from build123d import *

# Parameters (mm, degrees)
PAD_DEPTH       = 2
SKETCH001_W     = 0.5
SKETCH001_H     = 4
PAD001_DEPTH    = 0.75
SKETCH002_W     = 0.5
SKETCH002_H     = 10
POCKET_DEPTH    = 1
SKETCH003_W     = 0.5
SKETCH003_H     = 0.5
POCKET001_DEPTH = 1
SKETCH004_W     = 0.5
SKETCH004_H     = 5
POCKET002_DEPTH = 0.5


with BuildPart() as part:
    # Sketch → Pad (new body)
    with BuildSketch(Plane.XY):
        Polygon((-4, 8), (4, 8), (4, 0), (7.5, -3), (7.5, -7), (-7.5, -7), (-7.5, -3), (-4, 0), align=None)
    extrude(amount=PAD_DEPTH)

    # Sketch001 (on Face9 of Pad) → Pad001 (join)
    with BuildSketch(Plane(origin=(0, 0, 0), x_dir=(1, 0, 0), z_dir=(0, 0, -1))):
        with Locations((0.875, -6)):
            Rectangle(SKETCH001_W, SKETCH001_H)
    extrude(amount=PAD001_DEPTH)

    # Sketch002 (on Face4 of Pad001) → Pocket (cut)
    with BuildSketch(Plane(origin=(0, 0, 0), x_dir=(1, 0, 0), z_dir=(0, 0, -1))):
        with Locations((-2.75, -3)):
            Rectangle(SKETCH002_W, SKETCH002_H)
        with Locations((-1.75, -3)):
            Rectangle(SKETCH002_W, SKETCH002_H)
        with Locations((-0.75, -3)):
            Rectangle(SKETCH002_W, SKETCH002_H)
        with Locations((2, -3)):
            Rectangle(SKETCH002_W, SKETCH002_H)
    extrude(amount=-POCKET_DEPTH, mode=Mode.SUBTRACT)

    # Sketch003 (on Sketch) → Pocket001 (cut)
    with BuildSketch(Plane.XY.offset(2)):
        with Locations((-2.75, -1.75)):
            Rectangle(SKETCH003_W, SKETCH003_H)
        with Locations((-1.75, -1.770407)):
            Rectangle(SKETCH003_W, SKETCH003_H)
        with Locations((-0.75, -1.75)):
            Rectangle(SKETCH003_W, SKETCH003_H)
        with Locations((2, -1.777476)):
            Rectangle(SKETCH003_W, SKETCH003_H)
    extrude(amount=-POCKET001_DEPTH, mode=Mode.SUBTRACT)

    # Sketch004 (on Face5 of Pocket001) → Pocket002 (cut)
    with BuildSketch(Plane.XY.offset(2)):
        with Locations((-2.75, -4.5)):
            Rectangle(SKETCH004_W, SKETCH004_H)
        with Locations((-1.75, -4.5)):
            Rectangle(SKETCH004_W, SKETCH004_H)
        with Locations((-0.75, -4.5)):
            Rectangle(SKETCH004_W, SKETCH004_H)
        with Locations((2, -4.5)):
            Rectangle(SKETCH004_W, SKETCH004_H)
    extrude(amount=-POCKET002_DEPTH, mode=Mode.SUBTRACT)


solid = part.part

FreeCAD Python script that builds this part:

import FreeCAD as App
import Part
import Sketcher

doc = App.newDocument("Part")
params = doc.addObject("Spreadsheet::Sheet", "Params")
for row, (alias, value) in enumerate([
    ("sketch1_width", "8 mm"),
    ("sketch1_width2", "15 mm"),
    ("sketch1_height", "4 mm"),
    ("pad1_length", "2 mm"),
    ("sketch2_height", "4 mm"),
    ("sketch2_width", "0.5 mm"),
    ("pad2_length", "0.75 mm"),
    ("sketch3_height", "10 mm"),
    ("sketch3_width", "0.5 mm"),
    ("pocket1_length", "1 mm"),
    ("sketch4_width", "0.5 mm"),
    ("pocket2_length", "1 mm"),
    ("sketch5_height", "5 mm"),
    ("sketch5_width", "0.5 mm"),
    ("pocket3_length", "0.5 mm"),
], start=1):
    params.set(f"A{row}", alias)
    params.set(f"B{row}", "=" + value)
    params.setAlias(f"B{row}", alias)

body = doc.addObject("PartDesign::Body", "Body")

# Sketch on XY plane
sketch1 = body.newObject("Sketcher::SketchObject", "Sketch")
sketch1.AttachmentSupport = (doc.getObject("XY_Plane"), [""])
sketch1.MapMode = "FlatFace"
sketch1.addGeometry([
    Part.LineSegment(App.Vector(4, 8, 0), App.Vector(-4, 8, 0)),  # 0
    Part.LineSegment(App.Vector(-4, 8, 0), App.Vector(-4, 0, 0)),  # 1
    Part.LineSegment(App.Vector(-4, 0, 0), App.Vector(-7.5, -3, 0)),  # 2
    Part.LineSegment(App.Vector(-7.5, -3, 0), App.Vector(-7.5, -7, 0)),  # 3
    Part.LineSegment(App.Vector(-7.5, -7, 0), App.Vector(7.5, -7, 0)),  # 4
    Part.LineSegment(App.Vector(7.5, -7, 0), App.Vector(7.5, -3, 0)),  # 5
    Part.LineSegment(App.Vector(7.5, -3, 0), App.Vector(4, 0, 0)),  # 6
    Part.LineSegment(App.Vector(4, 0, 0), App.Vector(4, 8, 0)),  # 7
], False)
sketch1.addConstraint([
    Sketcher.Constraint("Coincident", 0, 2, 1, 1),
    Sketcher.Constraint("Coincident", 1, 2, 2, 1),
    Sketcher.Constraint("Coincident", 2, 2, 3, 1),
    Sketcher.Constraint("Coincident", 3, 2, 4, 1),
    Sketcher.Constraint("Coincident", 4, 2, 5, 1),
    Sketcher.Constraint("Coincident", 5, 2, 6, 1),
    Sketcher.Constraint("Coincident", 6, 2, 7, 1),
    Sketcher.Constraint("Coincident", 7, 2, 0, 1),
    Sketcher.Constraint("Horizontal", 0),
    Sketcher.Constraint("Vertical", 1),
    Sketcher.Constraint("Vertical", 3),
    Sketcher.Constraint("Horizontal", 4),
    Sketcher.Constraint("Vertical", 5),
    Sketcher.Constraint("Vertical", 7),
    Sketcher.Constraint("Symmetric", 1, 2, 6, 2, -1, 1),
    Sketcher.Constraint("Symmetric", 2, 2, 5, 2, -2),
    Sketcher.Constraint("PointOnObject", 1, 2, -1),
    Sketcher.Constraint("Equal", 0, 1),
    Sketcher.Constraint("DistanceX", 0, 2, 0, 1, 8.0),
    Sketcher.Constraint("DistanceX", 4, 1, 4, 2, 15.0),
    Sketcher.Constraint("DistanceY", 3, 2, 3, 1, 4.0),
    Sketcher.Constraint("DistanceY", 2, 2, -1, 1, 3.0),
])
sketch1.setExpression("Constraints[18]", "Params.sketch1_width")
sketch1.setExpression("Constraints[19]", "Params.sketch1_width2")
sketch1.setExpression("Constraints[20]", "Params.sketch1_height")
pad1 = body.newObject("PartDesign::Pad", "Pad")
pad1.Profile = sketch1
pad1.setExpression("Length", "Params.pad1_length")

# Sketch on XY plane
sketch2 = body.newObject("Sketcher::SketchObject", "Sketch001")
sketch2.AttachmentSupport = (doc.getObject("XY_Plane"), [""])
sketch2.MapMode = "FlatFace"
sketch2.addGeometry([
    Part.LineSegment(App.Vector(0.6, 4, 0), App.Vector(0.6, 8, 0)),
    Part.LineSegment(App.Vector(0.6, 8, 0), App.Vector(1.1, 8, 0)),
    Part.LineSegment(App.Vector(1.1, 8, 0), App.Vector(1.1, 4, 0)),
    Part.LineSegment(App.Vector(1.1, 4, 0), App.Vector(0.6, 4, 0)),
], False)
sketch2.addConstraint([
    Sketcher.Constraint("Coincident", 0, 2, 1, 1),
    Sketcher.Constraint("Coincident", 1, 2, 2, 1),
    Sketcher.Constraint("Coincident", 2, 2, 3, 1),
    Sketcher.Constraint("Coincident", 3, 2, 0, 1),
    Sketcher.Constraint("Vertical", 0),
    Sketcher.Constraint("Horizontal", 1),
    Sketcher.Constraint("Vertical", 2),
    Sketcher.Constraint("Horizontal", 3),
    Sketcher.Constraint("DistanceY", 0, 1, 0, 2, 4.0),
    Sketcher.Constraint("DistanceX", 1, 1, 1, 2, 0.5),
    Sketcher.Constraint("DistanceY", -1, 1, 0, 2, 8.0),
    Sketcher.Constraint("DistanceX", -1, 1, 0, 2, 0.625),
])
sketch2.setExpression("Constraints[8]", "Params.sketch2_height")
sketch2.setExpression("Constraints[9]", "Params.sketch2_width")
pad2 = body.newObject("PartDesign::Pad", "Pad001")
pad2.Profile = sketch2
pad2.setExpression("Length", "Params.pad2_length")
pad2.Reversed = True

# Sketch on XY plane
sketch3 = body.newObject("Sketcher::SketchObject", "Sketch002")
sketch3.AttachmentSupport = (doc.getObject("XY_Plane"), [""])
sketch3.MapMode = "FlatFace"
sketch3.addGeometry([
    Part.LineSegment(App.Vector(-3, -2, 0), App.Vector(-3, 8, 0)),  # 0
    Part.LineSegment(App.Vector(-3, 8, 0), App.Vector(-2.5, 8, 0)),  # 1
    Part.LineSegment(App.Vector(-2.5, 8, 0), App.Vector(-2.5, -2, 0)),  # 2
    Part.LineSegment(App.Vector(-2.5, -2, 0), App.Vector(-3, -2, 0)),  # 3
    Part.LineSegment(App.Vector(-2, -2, 0), App.Vector(-2, 8, 0)),  # 4
    Part.LineSegment(App.Vector(-2, 8, 0), App.Vector(-1.5, 8, 0)),  # 5
    Part.LineSegment(App.Vector(-1.5, 8, 0), App.Vector(-1.5, -2, 0)),  # 6
    Part.LineSegment(App.Vector(-1.5, -2, 0), App.Vector(-2, -2, 0)),  # 7
    Part.LineSegment(App.Vector(-1, -2, 0), App.Vector(-1, 8, 0)),  # 8
    Part.LineSegment(App.Vector(-1, 8, 0), App.Vector(-0.5, 8, 0)),  # 9
    Part.LineSegment(App.Vector(-0.5, 8, 0), App.Vector(-0.5, -2, 0)),  # 10
    Part.LineSegment(App.Vector(-0.5, -2, 0), App.Vector(-1, -2, 0)),  # 11
    Part.LineSegment(App.Vector(1.8, -2, 0), App.Vector(1.8, 8, 0)),  # 12
    Part.LineSegment(App.Vector(1.8, 8, 0), App.Vector(2.2, 8, 0)),  # 13
    Part.LineSegment(App.Vector(2.2, 8, 0), App.Vector(2.2, -2, 0)),  # 14
    Part.LineSegment(App.Vector(2.2, -2, 0), App.Vector(1.8, -2, 0)),  # 15
], False)
sketch3.addConstraint([
    Sketcher.Constraint("Coincident", 0, 2, 1, 1),
    Sketcher.Constraint("Coincident", 1, 2, 2, 1),
    Sketcher.Constraint("Coincident", 2, 2, 3, 1),
    Sketcher.Constraint("Coincident", 3, 2, 0, 1),
    Sketcher.Constraint("Coincident", 4, 2, 5, 1),
    Sketcher.Constraint("Coincident", 5, 2, 6, 1),
    Sketcher.Constraint("Coincident", 6, 2, 7, 1),
    Sketcher.Constraint("Coincident", 7, 2, 4, 1),
    Sketcher.Constraint("Coincident", 8, 2, 9, 1),
    Sketcher.Constraint("Coincident", 9, 2, 10, 1),
    Sketcher.Constraint("Coincident", 10, 2, 11, 1),
    Sketcher.Constraint("Coincident", 11, 2, 8, 1),
    Sketcher.Constraint("Coincident", 12, 2, 13, 1),
    Sketcher.Constraint("Coincident", 13, 2, 14, 1),
    Sketcher.Constraint("Coincident", 14, 2, 15, 1),
    Sketcher.Constraint("Coincident", 15, 2, 12, 1),
    Sketcher.Constraint("Vertical", 0),
    Sketcher.Constraint("Horizontal", 1),
    Sketcher.Constraint("Vertical", 2),
    Sketcher.Constraint("Horizontal", 3),
    Sketcher.Constraint("Vertical", 4),
    Sketcher.Constraint("Horizontal", 5),
    Sketcher.Constraint("Vertical", 6),
    Sketcher.Constraint("Horizontal", 7),
    Sketcher.Constraint("Vertical", 8),
    Sketcher.Constraint("Horizontal", 9),
    Sketcher.Constraint("Vertical", 10),
    Sketcher.Constraint("Horizontal", 11),
    Sketcher.Constraint("Vertical", 12),
    Sketcher.Constraint("Horizontal", 13),
    Sketcher.Constraint("Vertical", 14),
    Sketcher.Constraint("Horizontal", 15),
    Sketcher.Constraint("Horizontal", 1, 2, 4, 2),
    Sketcher.Constraint("Horizontal", 3, 2, 6, 2),
    Sketcher.Constraint("Horizontal", 5, 2, 8, 2),
    Sketcher.Constraint("Horizontal", 7, 2, 10, 2),
    Sketcher.Constraint("Horizontal", 9, 2, 12, 2),
    Sketcher.Constraint("Horizontal", 11, 2, 14, 2),
    Sketcher.Constraint("Equal", 3, 5),
    Sketcher.Constraint("Equal", 7, 9),
    Sketcher.Constraint("Equal", 11, 13),
    Sketcher.Constraint("DistanceY", 0, 1, 0, 2, 10.0),
    Sketcher.Constraint("DistanceX", 1, 1, 1, 2, 0.5),
    Sketcher.Constraint("DistanceX", 0, 2, -1, 1, 3.0),
    Sketcher.Constraint("DistanceY", -1, 1, 0, 2, 8.0),
    Sketcher.Constraint("DistanceX", 4, 2, -1, 1, 2.0),
    Sketcher.Constraint("DistanceX", 8, 2, -1, 1, 1.0),
    Sketcher.Constraint("DistanceX", -1, 1, 12, 2, 1.75),
])
sketch3.setExpression("Constraints[41]", "Params.sketch3_height")
sketch3.setExpression("Constraints[42]", "Params.sketch3_width")
pocket1 = body.newObject("PartDesign::Pocket", "Pocket")
pocket1.Profile = sketch3
pocket1.setExpression("Length", "Params.pocket1_length")
pocket1.Reversed = True

# Sketch on XY plane
sketch4 = body.newObject("Sketcher::SketchObject", "Sketch003")
sketch4.AttachmentSupport = (doc.getObject("XY_Plane"), [""])
sketch4.MapMode = "FlatFace"
sketch4.AttachmentOffset = App.Placement(App.Vector(0, 0, 2), App.Rotation())
sketch4.addGeometry([
    Part.LineSegment(App.Vector(-3, -1.5, 0), App.Vector(-3, -2, 0)),  # 0
    Part.LineSegment(App.Vector(-3, -2, 0), App.Vector(-2.5, -2, 0)),  # 1
    Part.LineSegment(App.Vector(-2.5, -2, 0), App.Vector(-2.5, -1.5, 0)),  # 2
    Part.LineSegment(App.Vector(-2.5, -1.5, 0), App.Vector(-3, -1.5, 0)),  # 3
    Part.LineSegment(App.Vector(-2, -1.5, 0), App.Vector(-2, -2, 0)),  # 4
    Part.LineSegment(App.Vector(-2, -2, 0), App.Vector(-1.5, -2, 0)),  # 5
    Part.LineSegment(App.Vector(-1.5, -2, 0), App.Vector(-1.5, -1.5, 0)),  # 6
    Part.LineSegment(App.Vector(-1.5, -1.5, 0), App.Vector(-2, -1.5, 0)),  # 7
    Part.LineSegment(App.Vector(-1, -1.5, 0), App.Vector(-1, -2, 0)),  # 8
    Part.LineSegment(App.Vector(-1, -2, 0), App.Vector(-0.5, -2, 0)),  # 9
    Part.LineSegment(App.Vector(-0.5, -2, 0), App.Vector(-0.5, -1.5, 0)),  # 10
    Part.LineSegment(App.Vector(-0.5, -1.5, 0), App.Vector(-1, -1.5, 0)),  # 11
    Part.LineSegment(App.Vector(1.8, -1.5, 0), App.Vector(1.8, -2, 0)),  # 12
    Part.LineSegment(App.Vector(1.8, -2, 0), App.Vector(2.2, -2, 0)),  # 13
    Part.LineSegment(App.Vector(2.2, -2, 0), App.Vector(2.2, -1.5, 0)),  # 14
    Part.LineSegment(App.Vector(2.2, -1.5, 0), App.Vector(1.8, -1.5, 0)),  # 15
], False)
sketch4.addConstraint([
    Sketcher.Constraint("Coincident", 0, 2, 1, 1),
    Sketcher.Constraint("Coincident", 1, 2, 2, 1),
    Sketcher.Constraint("Coincident", 2, 2, 3, 1),
    Sketcher.Constraint("Coincident", 3, 2, 0, 1),
    Sketcher.Constraint("Coincident", 4, 2, 5, 1),
    Sketcher.Constraint("Coincident", 5, 2, 6, 1),
    Sketcher.Constraint("Coincident", 6, 2, 7, 1),
    Sketcher.Constraint("Coincident", 7, 2, 4, 1),
    Sketcher.Constraint("Coincident", 8, 2, 9, 1),
    Sketcher.Constraint("Coincident", 9, 2, 10, 1),
    Sketcher.Constraint("Coincident", 10, 2, 11, 1),
    Sketcher.Constraint("Coincident", 11, 2, 8, 1),
    Sketcher.Constraint("Coincident", 12, 2, 13, 1),
    Sketcher.Constraint("Coincident", 13, 2, 14, 1),
    Sketcher.Constraint("Coincident", 14, 2, 15, 1),
    Sketcher.Constraint("Coincident", 15, 2, 12, 1),
    Sketcher.Constraint("Vertical", 0),
    Sketcher.Constraint("Horizontal", 1),
    Sketcher.Constraint("Vertical", 2),
    Sketcher.Constraint("Horizontal", 3),
    Sketcher.Constraint("Vertical", 4),
    Sketcher.Constraint("Horizontal", 5),
    Sketcher.Constraint("Vertical", 6),
    Sketcher.Constraint("Horizontal", 7),
    Sketcher.Constraint("Vertical", 8),
    Sketcher.Constraint("Horizontal", 9),
    Sketcher.Constraint("Vertical", 10),
    Sketcher.Constraint("Horizontal", 11),
    Sketcher.Constraint("Vertical", 12),
    Sketcher.Constraint("Horizontal", 13),
    Sketcher.Constraint("Vertical", 14),
    Sketcher.Constraint("Horizontal", 15),
    Sketcher.Constraint("Horizontal", 1, 2, 8, 2),
    Sketcher.Constraint("Horizontal", 3, 2, 10, 2),
    Sketcher.Constraint("Equal", 3, 5),
    Sketcher.Constraint("Equal", 7, 9),
    Sketcher.Constraint("Equal", 11, 13),
    Sketcher.Constraint("Equal", 15, 0),
    Sketcher.Constraint("Equal", 2, 4),
    Sketcher.Constraint("Equal", 10, 12),
    Sketcher.Constraint("DistanceX", 1, 1, 1, 2, 0.5),
    Sketcher.Constraint("DistanceX", 0, 2, -1, 1, 3.0),
    Sketcher.Constraint("DistanceY", 0, 2, -1, 1, 2.0),
    Sketcher.Constraint("DistanceX", 4, 2, -1, 1, 2.0),
    Sketcher.Constraint("DistanceX", 8, 2, -1, 1, 1.0),
    Sketcher.Constraint("DistanceX", -1, 1, 12, 2, 1.75),
    Sketcher.Constraint("DistanceY", 12, 2, 5, 2, 0.007069),
    Sketcher.Constraint("DistanceY", 4, 2, -1, 1, 2.020407),
])
sketch4.setExpression("Constraints[40]", "Params.sketch4_width")
pocket2 = body.newObject("PartDesign::Pocket", "Pocket001")
pocket2.Profile = sketch4
pocket2.setExpression("Length", "Params.pocket2_length")

# Sketch on XY plane
sketch5 = body.newObject("Sketcher::SketchObject", "Sketch004")
sketch5.AttachmentSupport = (doc.getObject("XY_Plane"), [""])
sketch5.MapMode = "FlatFace"
sketch5.AttachmentOffset = App.Placement(App.Vector(0, 0, 2), App.Rotation())
sketch5.addGeometry([
    Part.LineSegment(App.Vector(-3, -2, 0), App.Vector(-3, -7, 0)),  # 0
    Part.LineSegment(App.Vector(-3, -7, 0), App.Vector(-2.5, -7, 0)),  # 1
    Part.LineSegment(App.Vector(-2.5, -7, 0), App.Vector(-2.5, -2, 0)),  # 2
    Part.LineSegment(App.Vector(-2.5, -2, 0), App.Vector(-3, -2, 0)),  # 3
    Part.LineSegment(App.Vector(-2, -2, 0), App.Vector(-2, -7, 0)),  # 4
    Part.LineSegment(App.Vector(-2, -7, 0), App.Vector(-1.5, -7, 0)),  # 5
    Part.LineSegment(App.Vector(-1.5, -7, 0), App.Vector(-1.5, -2, 0)),  # 6
    Part.LineSegment(App.Vector(-1.5, -2, 0), App.Vector(-2, -2, 0)),  # 7
    Part.LineSegment(App.Vector(-1, -2, 0), App.Vector(-1, -7, 0)),  # 8
    Part.LineSegment(App.Vector(-1, -7, 0), App.Vector(-0.5, -7, 0)),  # 9
    Part.LineSegment(App.Vector(-0.5, -7, 0), App.Vector(-0.5, -2, 0)),  # 10
    Part.LineSegment(App.Vector(-0.5, -2, 0), App.Vector(-1, -2, 0)),  # 11
    Part.LineSegment(App.Vector(1.8, -2, 0), App.Vector(1.8, -7, 0)),  # 12
    Part.LineSegment(App.Vector(1.8, -7, 0), App.Vector(2.2, -7, 0)),  # 13
    Part.LineSegment(App.Vector(2.2, -7, 0), App.Vector(2.2, -2, 0)),  # 14
    Part.LineSegment(App.Vector(2.2, -2, 0), App.Vector(1.8, -2, 0)),  # 15
], False)
sketch5.addConstraint([
    Sketcher.Constraint("Coincident", 0, 2, 1, 1),
    Sketcher.Constraint("Coincident", 1, 2, 2, 1),
    Sketcher.Constraint("Coincident", 2, 2, 3, 1),
    Sketcher.Constraint("Coincident", 3, 2, 0, 1),
    Sketcher.Constraint("Coincident", 4, 2, 5, 1),
    Sketcher.Constraint("Coincident", 5, 2, 6, 1),
    Sketcher.Constraint("Coincident", 6, 2, 7, 1),
    Sketcher.Constraint("Coincident", 7, 2, 4, 1),
    Sketcher.Constraint("Coincident", 8, 2, 9, 1),
    Sketcher.Constraint("Coincident", 9, 2, 10, 1),
    Sketcher.Constraint("Coincident", 10, 2, 11, 1),
    Sketcher.Constraint("Coincident", 11, 2, 8, 1),
    Sketcher.Constraint("Coincident", 12, 2, 13, 1),
    Sketcher.Constraint("Coincident", 13, 2, 14, 1),
    Sketcher.Constraint("Coincident", 14, 2, 15, 1),
    Sketcher.Constraint("Coincident", 15, 2, 12, 1),
    Sketcher.Constraint("Vertical", 0),
    Sketcher.Constraint("Horizontal", 1),
    Sketcher.Constraint("Vertical", 2),
    Sketcher.Constraint("Horizontal", 3),
    Sketcher.Constraint("Vertical", 4),
    Sketcher.Constraint("Horizontal", 5),
    Sketcher.Constraint("Vertical", 6),
    Sketcher.Constraint("Horizontal", 7),
    Sketcher.Constraint("Vertical", 8),
    Sketcher.Constraint("Horizontal", 9),
    Sketcher.Constraint("Vertical", 10),
    Sketcher.Constraint("Horizontal", 11),
    Sketcher.Constraint("Vertical", 12),
    Sketcher.Constraint("Horizontal", 13),
    Sketcher.Constraint("Vertical", 14),
    Sketcher.Constraint("Horizontal", 15),
    Sketcher.Constraint("Horizontal", 1, 2, 4, 2),
    Sketcher.Constraint("Horizontal", 3, 2, 6, 2),
    Sketcher.Constraint("Horizontal", 5, 2, 8, 2),
    Sketcher.Constraint("Horizontal", 7, 2, 10, 2),
    Sketcher.Constraint("Horizontal", 9, 2, 12, 2),
    Sketcher.Constraint("Horizontal", 11, 2, 14, 2),
    Sketcher.Constraint("Equal", 3, 5),
    Sketcher.Constraint("Equal", 7, 9),
    Sketcher.Constraint("Equal", 11, 13),
    Sketcher.Constraint("DistanceY", 0, 2, 0, 1, 5.0),
    Sketcher.Constraint("DistanceX", 1, 1, 1, 2, 0.5),
    Sketcher.Constraint("DistanceX", 0, 2, -1, 1, 3.0),
    Sketcher.Constraint("DistanceY", 0, 2, -1, 1, 7.0),
    Sketcher.Constraint("DistanceX", 4, 2, -1, 1, 2.0),
    Sketcher.Constraint("DistanceX", 8, 2, -1, 1, 1.0),
    Sketcher.Constraint("DistanceX", -1, 1, 12, 2, 1.75),
])
sketch5.setExpression("Constraints[41]", "Params.sketch5_height")
sketch5.setExpression("Constraints[42]", "Params.sketch5_width")
pocket3 = body.newObject("PartDesign::Pocket", "Pocket002")
pocket3.Profile = sketch5
pocket3.setExpression("Length", "Params.pocket3_length")

doc.recompute()
